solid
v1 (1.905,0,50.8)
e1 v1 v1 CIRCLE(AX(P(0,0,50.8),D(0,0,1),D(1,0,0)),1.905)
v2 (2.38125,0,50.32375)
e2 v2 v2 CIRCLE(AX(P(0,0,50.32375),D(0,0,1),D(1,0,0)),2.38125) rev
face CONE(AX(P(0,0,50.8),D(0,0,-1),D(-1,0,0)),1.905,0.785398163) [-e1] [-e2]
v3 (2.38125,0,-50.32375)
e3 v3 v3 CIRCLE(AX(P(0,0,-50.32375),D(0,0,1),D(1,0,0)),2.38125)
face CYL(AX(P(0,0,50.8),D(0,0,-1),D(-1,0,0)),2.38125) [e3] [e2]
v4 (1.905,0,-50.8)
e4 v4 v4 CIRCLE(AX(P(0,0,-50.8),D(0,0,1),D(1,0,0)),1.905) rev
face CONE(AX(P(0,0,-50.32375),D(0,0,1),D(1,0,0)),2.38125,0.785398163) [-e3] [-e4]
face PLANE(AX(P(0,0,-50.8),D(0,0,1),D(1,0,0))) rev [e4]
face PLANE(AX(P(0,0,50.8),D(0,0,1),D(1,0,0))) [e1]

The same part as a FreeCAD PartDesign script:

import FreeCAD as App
import Part
import Sketcher
Q = App.Units.Quantity


def edges_at(feature, points):
    """Names of the edges that pass closest to the given points."""
    edges = feature.Shape.Edges
    near = lambda p: min(range(len(edges)), key=lambda i: edges[i].distToShape(Part.Vertex(*p))[0])
    return sorted({f"Edge{near(p) + 1}" for p in points})

doc = App.newDocument("Part")
body = doc.addObject("PartDesign::Body", "Body")

# Sketch on XY plane
sketch1 = doc.addObject("Sketcher::SketchObject", "Sketch")
body.addObject(sketch1)
sketch1.AttachmentSupport = (doc.XY_Plane, [""])
sketch1.MapMode = "FlatFace"
sketch1.addGeometry(Part.Circle(App.Vector(0, 0, 0), App.Vector(0, 0, 1), 2.38125), False)
sketch1.addConstraint(Sketcher.Constraint("Coincident", 0, 3, -1, 1))
sketch1.addConstraint(Sketcher.Constraint("Diameter", 0, Q("0.1875 in")))
pad1 = doc.addObject("PartDesign::Pad", "Pad")
body.addObject(pad1)
pad1.Profile = sketch1
pad1.Length = Q("4 in")
pad1.Midplane = True
doc.recompute()

chamfer = doc.addObject("PartDesign::Chamfer", "Chamfer")
body.addObject(chamfer)
chamfer.Base = (pad1, edges_at(pad1, [(-2.381, 0, -50.8), (-2.381, 0, 50.8)]))
chamfer.Size = 0.47625

doc.recompute()
